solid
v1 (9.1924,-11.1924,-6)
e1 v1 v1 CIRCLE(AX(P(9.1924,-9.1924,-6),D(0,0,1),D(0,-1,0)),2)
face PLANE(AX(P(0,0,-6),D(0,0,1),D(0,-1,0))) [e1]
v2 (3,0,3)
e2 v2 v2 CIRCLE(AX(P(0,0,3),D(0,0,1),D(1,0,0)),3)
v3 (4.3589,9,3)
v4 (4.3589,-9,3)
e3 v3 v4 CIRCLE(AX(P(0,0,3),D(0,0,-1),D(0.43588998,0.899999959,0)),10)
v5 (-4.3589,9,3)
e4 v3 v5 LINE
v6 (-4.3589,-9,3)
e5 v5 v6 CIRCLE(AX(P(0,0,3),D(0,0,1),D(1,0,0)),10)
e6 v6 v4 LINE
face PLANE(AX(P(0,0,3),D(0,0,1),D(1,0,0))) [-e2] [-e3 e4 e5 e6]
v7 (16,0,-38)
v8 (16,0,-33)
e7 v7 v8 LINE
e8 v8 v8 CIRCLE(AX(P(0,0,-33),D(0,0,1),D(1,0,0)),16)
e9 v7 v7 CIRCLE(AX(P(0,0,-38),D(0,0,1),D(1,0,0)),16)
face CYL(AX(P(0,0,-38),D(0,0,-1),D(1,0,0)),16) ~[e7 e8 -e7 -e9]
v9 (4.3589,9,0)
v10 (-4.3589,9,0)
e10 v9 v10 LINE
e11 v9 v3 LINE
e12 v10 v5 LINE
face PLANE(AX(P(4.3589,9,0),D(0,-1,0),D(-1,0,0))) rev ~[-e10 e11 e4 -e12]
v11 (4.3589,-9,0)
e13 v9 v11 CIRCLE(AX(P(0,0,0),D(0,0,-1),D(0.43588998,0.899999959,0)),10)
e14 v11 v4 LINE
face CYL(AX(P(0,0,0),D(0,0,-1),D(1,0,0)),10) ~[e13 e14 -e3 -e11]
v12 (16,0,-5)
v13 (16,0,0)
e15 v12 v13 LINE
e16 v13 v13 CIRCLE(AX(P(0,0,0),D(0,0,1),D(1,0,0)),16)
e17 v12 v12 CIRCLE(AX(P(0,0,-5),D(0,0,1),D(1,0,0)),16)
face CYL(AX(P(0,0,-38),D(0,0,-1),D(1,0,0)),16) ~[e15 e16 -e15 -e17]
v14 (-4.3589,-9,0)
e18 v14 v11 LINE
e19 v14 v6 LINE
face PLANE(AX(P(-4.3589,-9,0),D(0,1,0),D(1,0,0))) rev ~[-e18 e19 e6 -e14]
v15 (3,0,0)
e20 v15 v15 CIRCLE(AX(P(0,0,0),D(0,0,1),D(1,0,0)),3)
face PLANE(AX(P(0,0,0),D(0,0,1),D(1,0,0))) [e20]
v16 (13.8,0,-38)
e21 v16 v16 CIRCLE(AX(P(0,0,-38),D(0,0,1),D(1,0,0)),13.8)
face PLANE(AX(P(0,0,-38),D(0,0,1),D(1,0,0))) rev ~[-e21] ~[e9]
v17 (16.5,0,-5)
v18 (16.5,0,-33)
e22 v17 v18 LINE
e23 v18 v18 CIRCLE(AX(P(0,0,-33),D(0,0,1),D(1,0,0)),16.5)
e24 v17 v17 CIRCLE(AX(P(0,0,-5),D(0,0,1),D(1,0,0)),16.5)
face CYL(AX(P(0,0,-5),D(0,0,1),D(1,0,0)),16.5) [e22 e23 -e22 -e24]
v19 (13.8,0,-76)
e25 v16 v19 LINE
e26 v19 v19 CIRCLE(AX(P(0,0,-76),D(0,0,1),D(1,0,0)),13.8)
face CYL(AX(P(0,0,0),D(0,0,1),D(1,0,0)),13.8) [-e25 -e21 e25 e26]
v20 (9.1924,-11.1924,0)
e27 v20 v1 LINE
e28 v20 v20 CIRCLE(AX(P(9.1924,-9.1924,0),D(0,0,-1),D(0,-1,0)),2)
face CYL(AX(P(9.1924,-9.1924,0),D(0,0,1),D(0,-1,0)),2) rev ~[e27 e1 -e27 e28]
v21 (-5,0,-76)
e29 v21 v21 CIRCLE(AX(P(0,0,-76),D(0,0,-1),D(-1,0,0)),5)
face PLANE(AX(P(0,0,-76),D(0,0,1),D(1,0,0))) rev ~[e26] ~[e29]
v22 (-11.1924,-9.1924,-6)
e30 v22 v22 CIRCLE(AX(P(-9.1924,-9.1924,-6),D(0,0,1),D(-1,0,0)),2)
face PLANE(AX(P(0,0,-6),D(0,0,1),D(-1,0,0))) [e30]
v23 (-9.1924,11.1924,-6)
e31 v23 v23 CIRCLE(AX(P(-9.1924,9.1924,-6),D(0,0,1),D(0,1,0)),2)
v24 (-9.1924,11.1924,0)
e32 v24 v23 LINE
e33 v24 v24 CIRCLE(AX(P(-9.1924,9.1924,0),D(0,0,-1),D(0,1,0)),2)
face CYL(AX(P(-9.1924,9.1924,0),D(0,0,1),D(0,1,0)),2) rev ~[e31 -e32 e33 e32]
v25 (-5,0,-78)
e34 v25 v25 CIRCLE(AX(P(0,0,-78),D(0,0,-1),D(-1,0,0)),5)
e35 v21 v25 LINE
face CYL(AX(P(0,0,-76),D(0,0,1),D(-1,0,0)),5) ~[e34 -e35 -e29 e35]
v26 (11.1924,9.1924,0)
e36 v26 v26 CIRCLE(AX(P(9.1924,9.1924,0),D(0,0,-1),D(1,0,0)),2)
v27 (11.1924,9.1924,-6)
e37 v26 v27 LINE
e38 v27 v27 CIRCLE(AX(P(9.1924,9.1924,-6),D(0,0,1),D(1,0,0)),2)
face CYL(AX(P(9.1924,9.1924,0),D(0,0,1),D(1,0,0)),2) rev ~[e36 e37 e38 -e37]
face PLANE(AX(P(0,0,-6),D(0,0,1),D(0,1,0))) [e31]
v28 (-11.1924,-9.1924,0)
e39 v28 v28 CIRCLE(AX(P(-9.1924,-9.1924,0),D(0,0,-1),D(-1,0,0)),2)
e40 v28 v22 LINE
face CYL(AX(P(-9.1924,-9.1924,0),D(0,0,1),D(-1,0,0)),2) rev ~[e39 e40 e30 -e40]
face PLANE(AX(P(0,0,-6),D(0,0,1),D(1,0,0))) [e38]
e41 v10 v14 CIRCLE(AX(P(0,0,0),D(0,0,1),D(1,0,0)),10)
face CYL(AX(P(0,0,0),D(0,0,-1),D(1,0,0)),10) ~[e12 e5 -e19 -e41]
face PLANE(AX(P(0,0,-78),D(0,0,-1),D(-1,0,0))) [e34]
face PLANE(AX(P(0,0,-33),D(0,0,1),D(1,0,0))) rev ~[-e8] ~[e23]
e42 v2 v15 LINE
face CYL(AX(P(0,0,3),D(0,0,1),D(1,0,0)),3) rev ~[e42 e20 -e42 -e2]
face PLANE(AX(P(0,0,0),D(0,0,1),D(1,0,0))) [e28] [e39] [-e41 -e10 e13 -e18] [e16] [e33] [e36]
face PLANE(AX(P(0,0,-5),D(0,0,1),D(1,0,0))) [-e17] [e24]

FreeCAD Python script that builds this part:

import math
import FreeCAD as App
import Part
import Sketcher
from FreeCAD import Vector

doc = App.newDocument("Part")
body = doc.addObject("PartDesign::Body", "Body")

sketch1 = body.newObject("Sketcher::SketchObject", "Sketch")
sketch1.AttachmentSupport = (doc.getObject("XY_Plane"), [""])
sketch1.MapMode = "FlatFace"
sketch1.addGeometry(Part.Circle(Vector(0, 0, 0), Vector(0, 0, 1), 13.8), False)
sketch1.addConstraint([
    Sketcher.Constraint("Coincident", 0, 3, -1, 1),
    Sketcher.Constraint("Diameter", 0, 27.6),
])
pad1 = body.newObject("PartDesign::Pad", "Pad")
pad1.Profile = sketch1
pad1.Length = 76
pad1.Reversed = True

sketch2 = body.newObject("Sketcher::SketchObject", "Sketch001")
sketch2.AttachmentSupport = (doc.getObject("XY_Plane"), [""])
sketch2.MapMode = "FlatFace"
sketch2.AttachmentOffset = App.Placement(Vector(0, 0, -38), App.Rotation())
sketch2.addGeometry([
    Part.Circle(Vector(0, 0, 0), Vector(0, 0, 1), 16),
    Part.Circle(Vector(0, 0, 0), Vector(0, 0, 1), 13.8),
], False)
sketch2.addConstraint([
    Sketcher.Constraint("Coincident", 0, 3, -1, 1),
    Sketcher.Constraint("Coincident", 1, 3, -1, 1),
    Sketcher.Constraint("Diameter", 0, 32.0),
    Sketcher.Constraint("Diameter", 1, 27.6),
])
pad2 = body.newObject("PartDesign::Pad", "Pad001")
pad2.Profile = sketch2
pad2.Length = 38

sketch3 = body.newObject("Sketcher::SketchObject", "Sketch002")
sketch3.AttachmentSupport = (doc.getObject("XY_Plane"), [""])
sketch3.MapMode = "FlatFace"
sketch3.AttachmentOffset = App.Placement(Vector(0, 0, -76), App.Rotation())
sketch3.addGeometry(Part.Circle(Vector(0, 0, 0), Vector(0, 0, 1), 5), False)
sketch3.addConstraint([
    Sketcher.Constraint("Coincident", 0, 3, -1, 1),
    Sketcher.Constraint("Diameter", 0, 10.0),
])
pad3 = body.newObject("PartDesign::Pad", "Pad002")
pad3.Profile = sketch3
pad3.Length = 2
pad3.Reversed = True

sketch4 = body.newObject("Sketcher::SketchObject", "Sketch003")
sketch4.AttachmentSupport = (doc.getObject("XY_Plane"), [""])
sketch4.MapMode = "FlatFace"
sketch4.addGeometry([
    Part.LineSegment(Vector(4.3589, 9, 0), Vector(-4.3589, 9, 0)),
    Part.ArcOfCircle(Part.Circle(Vector(0, 0, 0), Vector(0, 0, 1), 10), math.radians(115.841938), math.radians(244.158062)),
    Part.LineSegment(Vector(-4.3589, -9, 0), Vector(4.3589, -9, 0)),
    Part.ArcOfCircle(Part.Circle(Vector(0, 0, 0), Vector(0, 0, 1), 10), math.radians(-64.158062), math.radians(64.158062)),
], False)
sketch4.addConstraint([
    Sketcher.Constraint("Coincident", 0, 2, 1, 1),
    Sketcher.Constraint("Coincident", 1, 2, 2, 1),
    Sketcher.Constraint("Coincident", 2, 2, 3, 1),
    Sketcher.Constraint("Coincident", 3, 2, 0, 1),
    Sketcher.Constraint("Horizontal", 0),
    Sketcher.Constraint("Horizontal", 2),
    Sketcher.Constraint("Coincident", 1, 3, -1, 1),
    Sketcher.Constraint("Coincident", 3, 3, -1, 1),
    Sketcher.Constraint("Equal", 1, 3),
    Sketcher.Constraint("Vertical", 0, 2, 1, 2),
    Sketcher.Constraint("Radius", 1, 10.0),
    Sketcher.Constraint("DistanceY", 1, 2, 0, 2, 18.0),
])
pad4 = body.newObject("PartDesign::Pad", "Pad003")
pad4.Profile = sketch4
pad4.Length = 3

sketch5 = body.newObject("Sketcher::SketchObject", "Sketch004")
sketch5.AttachmentSupport = (doc.getObject("XY_Plane"), [""])
sketch5.MapMode = "FlatFace"
sketch5.AttachmentOffset = App.Placement(Vector(0, 0, 3), App.Rotation())
sketch5.addGeometry(Part.Circle(Vector(0, 0, 0), Vector(0, 0, 1), 3), False)
sketch5.addConstraint([
    Sketcher.Constraint("Coincident", 0, 3, -1, 1),
    Sketcher.Constraint("Diameter", 0, 6.0),
])
pocket1 = body.newObject("PartDesign::Pocket", "Pocket")
pocket1.Profile = sketch5
pocket1.Length = 3

sketch6 = body.newObject("Sketcher::SketchObject", "Sketch005")
sketch6.AttachmentSupport = (doc.getObject("XY_Plane"), [""])
sketch6.MapMode = "FlatFace"
sketch6.addGeometry(Part.Circle(Vector(9.1924, 9.1924, 0), Vector(0, 0, 1), 2), False)
sketch6.addConstraint([
    Sketcher.Constraint("Diameter", 0, 4.0),
    Sketcher.Constraint("DistanceX", -1, 1, 0, 3, 9.1924),
    Sketcher.Constraint("DistanceY", -1, 1, 0, 3, 9.1924),
])
pocket2 = body.newObject("PartDesign::Pocket", "Pocket001")
pocket2.Profile = sketch6
pocket2.Length = 6
doc.recompute()

polarpattern = body.newObject("PartDesign::PolarPattern", "PolarPattern")
polarpattern.Originals = [pocket2]
polarpattern.Axis = (doc.getObject("Z_Axis"), [""])
polarpattern.Angle = 360
polarpattern.Occurrences = 4
body.Tip = polarpattern

sketch7 = body.newObject("Sketcher::SketchObject", "Sketch006")
sketch7.AttachmentSupport = (doc.getObject("XY_Plane"), [""])
sketch7.MapMode = "FlatFace"
sketch7.AttachmentOffset = App.Placement(Vector(0, 0, -5), App.Rotation())
sketch7.addGeometry([
    Part.Circle(Vector(0, 0, 0), Vector(0, 0, 1), 16.5),
    Part.Circle(Vector(0, 0, 0), Vector(0, 0, 1), 16),
], False)
sketch7.addConstraint([
    Sketcher.Constraint("Coincident", 0, 3, -1, 1),
    Sketcher.Constraint("Coincident", 1, 3, -1, 1),
    Sketcher.Constraint("Diameter", 0, 33.0),
    Sketcher.Constraint("Diameter", 1, 32.0),
])
pad5 = body.newObject("PartDesign::Pad", "Pad004")
pad5.Profile = sketch7
pad5.Length = 28
pad5.Reversed = True

doc.recompute()
